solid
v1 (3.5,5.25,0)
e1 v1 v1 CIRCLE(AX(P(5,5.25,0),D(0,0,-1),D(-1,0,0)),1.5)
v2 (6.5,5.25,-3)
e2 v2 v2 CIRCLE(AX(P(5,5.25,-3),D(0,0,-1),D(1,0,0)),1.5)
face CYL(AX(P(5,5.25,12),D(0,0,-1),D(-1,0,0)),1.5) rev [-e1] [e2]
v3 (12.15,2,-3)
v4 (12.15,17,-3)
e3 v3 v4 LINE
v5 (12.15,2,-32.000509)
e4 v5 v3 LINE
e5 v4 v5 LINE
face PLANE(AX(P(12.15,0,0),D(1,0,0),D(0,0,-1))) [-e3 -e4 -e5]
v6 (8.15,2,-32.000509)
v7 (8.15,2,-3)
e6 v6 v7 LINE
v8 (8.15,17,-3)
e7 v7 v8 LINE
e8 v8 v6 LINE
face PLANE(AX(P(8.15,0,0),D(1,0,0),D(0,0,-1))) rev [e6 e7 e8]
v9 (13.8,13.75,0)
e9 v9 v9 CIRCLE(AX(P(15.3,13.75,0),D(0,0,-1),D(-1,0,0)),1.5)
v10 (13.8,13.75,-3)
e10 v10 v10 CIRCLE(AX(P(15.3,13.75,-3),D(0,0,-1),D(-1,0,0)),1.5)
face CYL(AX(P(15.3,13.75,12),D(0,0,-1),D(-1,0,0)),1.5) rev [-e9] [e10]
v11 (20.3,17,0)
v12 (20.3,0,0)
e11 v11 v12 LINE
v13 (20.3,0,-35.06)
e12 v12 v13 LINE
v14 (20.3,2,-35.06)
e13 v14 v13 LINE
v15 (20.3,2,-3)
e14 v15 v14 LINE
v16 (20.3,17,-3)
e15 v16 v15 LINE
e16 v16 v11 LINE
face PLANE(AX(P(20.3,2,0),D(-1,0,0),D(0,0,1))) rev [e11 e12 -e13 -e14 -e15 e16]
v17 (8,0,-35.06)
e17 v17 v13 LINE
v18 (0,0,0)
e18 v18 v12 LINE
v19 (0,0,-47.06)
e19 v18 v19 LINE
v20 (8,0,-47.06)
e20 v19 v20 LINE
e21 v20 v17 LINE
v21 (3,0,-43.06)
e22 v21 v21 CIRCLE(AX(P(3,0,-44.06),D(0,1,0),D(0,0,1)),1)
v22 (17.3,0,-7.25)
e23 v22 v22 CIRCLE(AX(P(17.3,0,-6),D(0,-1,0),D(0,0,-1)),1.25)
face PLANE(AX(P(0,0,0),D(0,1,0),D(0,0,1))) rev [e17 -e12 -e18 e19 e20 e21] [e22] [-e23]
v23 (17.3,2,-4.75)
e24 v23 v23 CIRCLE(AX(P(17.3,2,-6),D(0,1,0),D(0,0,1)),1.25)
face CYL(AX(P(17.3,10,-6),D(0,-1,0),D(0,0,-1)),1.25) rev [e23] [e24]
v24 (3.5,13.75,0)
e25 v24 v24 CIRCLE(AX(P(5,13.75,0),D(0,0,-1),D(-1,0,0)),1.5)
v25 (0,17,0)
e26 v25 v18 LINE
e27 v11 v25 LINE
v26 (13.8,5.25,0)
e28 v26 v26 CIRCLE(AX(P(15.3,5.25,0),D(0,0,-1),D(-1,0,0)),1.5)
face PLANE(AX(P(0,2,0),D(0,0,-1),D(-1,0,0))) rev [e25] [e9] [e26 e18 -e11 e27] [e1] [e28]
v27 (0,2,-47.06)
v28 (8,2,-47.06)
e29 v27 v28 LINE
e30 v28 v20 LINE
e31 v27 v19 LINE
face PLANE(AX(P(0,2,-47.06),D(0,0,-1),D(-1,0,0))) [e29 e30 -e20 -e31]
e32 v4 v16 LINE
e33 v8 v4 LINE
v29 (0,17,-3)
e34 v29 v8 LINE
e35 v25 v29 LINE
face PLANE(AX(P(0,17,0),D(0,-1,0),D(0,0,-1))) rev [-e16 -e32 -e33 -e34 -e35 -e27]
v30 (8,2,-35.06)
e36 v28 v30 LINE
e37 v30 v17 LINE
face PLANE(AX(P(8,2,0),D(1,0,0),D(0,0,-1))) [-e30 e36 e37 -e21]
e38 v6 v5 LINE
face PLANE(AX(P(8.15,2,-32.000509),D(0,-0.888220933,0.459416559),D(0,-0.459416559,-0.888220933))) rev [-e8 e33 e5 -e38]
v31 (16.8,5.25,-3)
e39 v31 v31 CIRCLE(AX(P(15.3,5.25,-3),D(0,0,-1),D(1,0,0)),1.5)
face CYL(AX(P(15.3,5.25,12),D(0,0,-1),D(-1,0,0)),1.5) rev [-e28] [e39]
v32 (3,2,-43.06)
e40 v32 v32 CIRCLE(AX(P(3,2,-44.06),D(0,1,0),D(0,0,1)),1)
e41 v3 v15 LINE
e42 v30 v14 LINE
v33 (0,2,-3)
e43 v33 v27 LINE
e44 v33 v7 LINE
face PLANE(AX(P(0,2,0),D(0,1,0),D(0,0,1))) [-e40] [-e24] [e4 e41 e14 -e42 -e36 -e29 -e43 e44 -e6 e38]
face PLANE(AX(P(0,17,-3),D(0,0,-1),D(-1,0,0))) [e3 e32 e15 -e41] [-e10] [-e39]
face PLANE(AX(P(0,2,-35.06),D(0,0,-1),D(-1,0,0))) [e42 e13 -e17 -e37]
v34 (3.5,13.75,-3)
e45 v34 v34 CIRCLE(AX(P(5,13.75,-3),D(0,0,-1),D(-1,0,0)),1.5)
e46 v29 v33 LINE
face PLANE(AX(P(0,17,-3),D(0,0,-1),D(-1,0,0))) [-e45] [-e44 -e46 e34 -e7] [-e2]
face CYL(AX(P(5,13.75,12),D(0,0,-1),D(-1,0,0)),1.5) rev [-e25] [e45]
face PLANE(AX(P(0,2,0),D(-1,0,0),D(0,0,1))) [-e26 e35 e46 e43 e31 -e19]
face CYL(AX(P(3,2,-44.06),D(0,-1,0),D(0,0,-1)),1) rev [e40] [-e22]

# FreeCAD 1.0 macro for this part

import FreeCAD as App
import Part
import Sketcher
from FreeCAD import Vector
Q = App.Units.Quantity


def add_polygon(sketch, points):
    """Adds a closed chain of lines whose ends are joined by coincident constraints."""
    first, n = sketch.GeometryCount, len(points)
    for a, b in zip(points, points[1:] + points[:1]):
        sketch.addGeometry(Part.LineSegment(App.Vector(*a, 0), App.Vector(*b, 0)), False)
    for i in range(n):
        sketch.addConstraint(Sketcher.Constraint("Coincident", first + i, 2, first + (i + 1) % n, 1))

doc = App.newDocument("Part")
body = doc.addObject("PartDesign::Body", "Body")

sketch1 = doc.addObject("Sketcher::SketchObject", "Sketch")
body.addObject(sketch1)
sketch1.AttachmentSupport = (doc.XZ_Plane, [""])
sketch1.MapMode = "FlatFace"
add_polygon(sketch1, [(8, -47.1), (0, -47.1), (0, 0), (20.3, 0), (20.3, -35.1), (8, -35.1)])
sketch1.addGeometry(Part.Circle(Vector(3, -44.1, 0), Vector(0, 0, 1), 1), False)
sketch1.addConstraint(Sketcher.Constraint("Horizontal", 0))
sketch1.addConstraint(Sketcher.Constraint("Vertical", 1))
sketch1.addConstraint(Sketcher.Constraint("Horizontal", 2))
sketch1.addConstraint(Sketcher.Constraint("Vertical", 3))
sketch1.addConstraint(Sketcher.Constraint("Horizontal", 4))
sketch1.addConstraint(Sketcher.Constraint("Vertical", 5))
sketch1.addConstraint(Sketcher.Constraint("Coincident", 1, 2, -1, 1))
sketch1.addConstraint(Sketcher.Constraint("Diameter", 6, Q("2 mm")))
sketch1.addConstraint(Sketcher.Constraint("DistanceX", 0, 2, 0, 1, Q("8 mm")))
sketch1.addConstraint(Sketcher.Constraint("DistanceY", 5, 2, 5, 1, Q("12 mm")))
sketch1.addConstraint(Sketcher.Constraint("DistanceX", 2, 1, 2, 2, Q("20.3 mm")))
sketch1.addConstraint(Sketcher.Constraint("DistanceX", -1, 1, 6, 3, Q("3 mm")))
sketch1.addConstraint(Sketcher.Constraint("DistanceY", 0, 2, 6, 3, Q("3 mm")))
sketch1.addConstraint(Sketcher.Constraint("DistanceY", 1, 1, 1, 2, Q("47.06 mm")))
pad1 = doc.addObject("PartDesign::Pad", "Pad")
body.addObject(pad1)
pad1.Profile = sketch1
pad1.Length = 2
pad1.Reversed = True

sketch2 = doc.addObject("Sketcher::SketchObject", "Sketch001")
body.addObject(sketch2)
sketch2.AttachmentSupport = (doc.XZ_Plane, [""])
sketch2.MapMode = "FlatFace"
sketch2.AttachmentOffset = App.Placement(Vector(0, 0, -2), App.Rotation())
add_polygon(sketch2, [(0, -3), (0, 0), (20.3, 0), (20.3, -3)])
sketch2.addConstraint(Sketcher.Constraint("Vertical", 0))
sketch2.addConstraint(Sketcher.Constraint("Horizontal", 1))
sketch2.addConstraint(Sketcher.Constraint("Vertical", 2))
sketch2.addConstraint(Sketcher.Constraint("Horizontal", 3))
sketch2.addConstraint(Sketcher.Constraint("Coincident", 0, 2, -1, 1))
sketch2.addConstraint(Sketcher.Constraint("DistanceY", 0, 1, 0, 2, Q("3 mm")))
sketch2.addConstraint(Sketcher.Constraint("DistanceX", 1, 1, 1, 2, Q("20.3 mm")))
pad2 = doc.addObject("PartDesign::Pad", "Pad001")
body.addObject(pad2)
pad2.Profile = sketch2
pad2.Length = 15
pad2.Reversed = True

sketch3 = doc.addObject("Sketcher::SketchObject", "Sketch002")
body.addObject(sketch3)
sketch3.AttachmentSupport = (doc.XY_Plane, [""])
sketch3.MapMode = "FlatFace"
sketch3.AttachmentOffset = App.Placement(Vector(0, 0, -3), App.Rotation())
sketch3.addGeometry(Part.Circle(Vector(15.3, 13.8, 0), Vector(0, 0, 1), 1.5), False)
sketch3.addGeometry(Part.Circle(Vector(15.3, 5.2, 0), Vector(0, 0, 1), 1.5), False)
sketch3.addGeometry(Part.Circle(Vector(5, 13.8, 0), Vector(0, 0, 1), 1.5), False)
sketch3.addGeometry(Part.Circle(Vector(5, 5.2, 0), Vector(0, 0, 1), 1.5), False)
sketch3.addConstraint(Sketcher.Constraint("Equal", 0, 1))
sketch3.addConstraint(Sketcher.Constraint("Equal", 1, 2))
sketch3.addConstraint(Sketcher.Constraint("Equal", 2, 3))
sketch3.addConstraint(Sketcher.Constraint("Horizontal", 0, 3, 2, 3))
sketch3.addConstraint(Sketcher.Constraint("Horizontal", 1, 3, 3, 3))
sketch3.addConstraint(Sketcher.Constraint("Vertical", 0, 3, 1, 3))
sketch3.addConstraint(Sketcher.Constraint("Vertical", 2, 3, 3, 3))
sketch3.addConstraint(Sketcher.Constraint("Diameter", 0, Q("3 mm")))
sketch3.addConstraint(Sketcher.Constraint("DistanceX", -1, 1, 2, 3, Q("5 mm")))
sketch3.addConstraint(Sketcher.Constraint("DistanceX", -1, 1, 0, 3, Q("15.3 mm")))
sketch3.addConstraint(Sketcher.Constraint("DistanceY", 1, 3, 0, 3, Q("8.5 mm")))
sketch3.addConstraint(Sketcher.Constraint("DistanceY", -1, 1, 0, 3, Q("13.75 mm")))
pocket1 = doc.addObject("PartDesign::Pocket", "Pocket")
body.addObject(pocket1)
pocket1.Profile = sketch3
pocket1.Length = 15
pocket1.Reversed = True

sketch4 = doc.addObject("Sketcher::SketchObject", "Sketch003")
body.addObject(sketch4)
sketch4.AttachmentSupport = (doc.XZ_Plane, [""])
sketch4.MapMode = "FlatFace"
sketch4.addGeometry(Part.Circle(Vector(17.3, -6, 0), Vector(0, 0, 1), 1.2), False)
sketch4.addConstraint(Sketcher.Constraint("Diameter", 0, Q("2.5 mm")))
sketch4.addConstraint(Sketcher.Constraint("DistanceY", 0, 3, -1, 1, Q("6 mm")))
sketch4.addConstraint(Sketcher.Constraint("DistanceX", -1, 1, 0, 3, Q("17.3 mm")))
pocket2 = doc.addObject("PartDesign::Pocket", "Pocket001")
body.addObject(pocket2)
pocket2.Profile = sketch4
pocket2.Length = 10

sketch5 = doc.addObject("Sketcher::SketchObject", "Sketch004")
body.addObject(sketch5)
sketch5.AttachmentSupport = (doc.YZ_Plane, [""])
sketch5.MapMode = "FlatFace"
sketch5.AttachmentOffset = App.Placement(Vector(0, 0, 10.15), App.Rotation())
add_polygon(sketch5, [(2, -3), (17, -3), (2, -32)])
sketch5.addConstraint(Sketcher.Constraint("Horizontal", 0))
sketch5.addConstraint(Sketcher.Constraint("Vertical", 2))
sketch5.addConstraint(Sketcher.Constraint("DistanceX", 0, 1, 0, 2, Q("15 mm")))
sketch5.addConstraint(Sketcher.Constraint("DistanceX", -1, 1, 0, 2, Q("17 mm")))
sketch5.addConstraint(Sketcher.Constraint("DistanceY", 0, 2, -1, 1, Q("3 mm")))
sketch5.addConstraint(Sketcher.Constraint("DistanceY", 2, 1, 2, 2, Q("29.000509 mm")))
pad3 = doc.addObject("PartDesign::Pad", "Pad002")
body.addObject(pad3)
pad3.Profile = sketch5
pad3.Length = 4
pad3.Midplane = True

doc.recompute()
